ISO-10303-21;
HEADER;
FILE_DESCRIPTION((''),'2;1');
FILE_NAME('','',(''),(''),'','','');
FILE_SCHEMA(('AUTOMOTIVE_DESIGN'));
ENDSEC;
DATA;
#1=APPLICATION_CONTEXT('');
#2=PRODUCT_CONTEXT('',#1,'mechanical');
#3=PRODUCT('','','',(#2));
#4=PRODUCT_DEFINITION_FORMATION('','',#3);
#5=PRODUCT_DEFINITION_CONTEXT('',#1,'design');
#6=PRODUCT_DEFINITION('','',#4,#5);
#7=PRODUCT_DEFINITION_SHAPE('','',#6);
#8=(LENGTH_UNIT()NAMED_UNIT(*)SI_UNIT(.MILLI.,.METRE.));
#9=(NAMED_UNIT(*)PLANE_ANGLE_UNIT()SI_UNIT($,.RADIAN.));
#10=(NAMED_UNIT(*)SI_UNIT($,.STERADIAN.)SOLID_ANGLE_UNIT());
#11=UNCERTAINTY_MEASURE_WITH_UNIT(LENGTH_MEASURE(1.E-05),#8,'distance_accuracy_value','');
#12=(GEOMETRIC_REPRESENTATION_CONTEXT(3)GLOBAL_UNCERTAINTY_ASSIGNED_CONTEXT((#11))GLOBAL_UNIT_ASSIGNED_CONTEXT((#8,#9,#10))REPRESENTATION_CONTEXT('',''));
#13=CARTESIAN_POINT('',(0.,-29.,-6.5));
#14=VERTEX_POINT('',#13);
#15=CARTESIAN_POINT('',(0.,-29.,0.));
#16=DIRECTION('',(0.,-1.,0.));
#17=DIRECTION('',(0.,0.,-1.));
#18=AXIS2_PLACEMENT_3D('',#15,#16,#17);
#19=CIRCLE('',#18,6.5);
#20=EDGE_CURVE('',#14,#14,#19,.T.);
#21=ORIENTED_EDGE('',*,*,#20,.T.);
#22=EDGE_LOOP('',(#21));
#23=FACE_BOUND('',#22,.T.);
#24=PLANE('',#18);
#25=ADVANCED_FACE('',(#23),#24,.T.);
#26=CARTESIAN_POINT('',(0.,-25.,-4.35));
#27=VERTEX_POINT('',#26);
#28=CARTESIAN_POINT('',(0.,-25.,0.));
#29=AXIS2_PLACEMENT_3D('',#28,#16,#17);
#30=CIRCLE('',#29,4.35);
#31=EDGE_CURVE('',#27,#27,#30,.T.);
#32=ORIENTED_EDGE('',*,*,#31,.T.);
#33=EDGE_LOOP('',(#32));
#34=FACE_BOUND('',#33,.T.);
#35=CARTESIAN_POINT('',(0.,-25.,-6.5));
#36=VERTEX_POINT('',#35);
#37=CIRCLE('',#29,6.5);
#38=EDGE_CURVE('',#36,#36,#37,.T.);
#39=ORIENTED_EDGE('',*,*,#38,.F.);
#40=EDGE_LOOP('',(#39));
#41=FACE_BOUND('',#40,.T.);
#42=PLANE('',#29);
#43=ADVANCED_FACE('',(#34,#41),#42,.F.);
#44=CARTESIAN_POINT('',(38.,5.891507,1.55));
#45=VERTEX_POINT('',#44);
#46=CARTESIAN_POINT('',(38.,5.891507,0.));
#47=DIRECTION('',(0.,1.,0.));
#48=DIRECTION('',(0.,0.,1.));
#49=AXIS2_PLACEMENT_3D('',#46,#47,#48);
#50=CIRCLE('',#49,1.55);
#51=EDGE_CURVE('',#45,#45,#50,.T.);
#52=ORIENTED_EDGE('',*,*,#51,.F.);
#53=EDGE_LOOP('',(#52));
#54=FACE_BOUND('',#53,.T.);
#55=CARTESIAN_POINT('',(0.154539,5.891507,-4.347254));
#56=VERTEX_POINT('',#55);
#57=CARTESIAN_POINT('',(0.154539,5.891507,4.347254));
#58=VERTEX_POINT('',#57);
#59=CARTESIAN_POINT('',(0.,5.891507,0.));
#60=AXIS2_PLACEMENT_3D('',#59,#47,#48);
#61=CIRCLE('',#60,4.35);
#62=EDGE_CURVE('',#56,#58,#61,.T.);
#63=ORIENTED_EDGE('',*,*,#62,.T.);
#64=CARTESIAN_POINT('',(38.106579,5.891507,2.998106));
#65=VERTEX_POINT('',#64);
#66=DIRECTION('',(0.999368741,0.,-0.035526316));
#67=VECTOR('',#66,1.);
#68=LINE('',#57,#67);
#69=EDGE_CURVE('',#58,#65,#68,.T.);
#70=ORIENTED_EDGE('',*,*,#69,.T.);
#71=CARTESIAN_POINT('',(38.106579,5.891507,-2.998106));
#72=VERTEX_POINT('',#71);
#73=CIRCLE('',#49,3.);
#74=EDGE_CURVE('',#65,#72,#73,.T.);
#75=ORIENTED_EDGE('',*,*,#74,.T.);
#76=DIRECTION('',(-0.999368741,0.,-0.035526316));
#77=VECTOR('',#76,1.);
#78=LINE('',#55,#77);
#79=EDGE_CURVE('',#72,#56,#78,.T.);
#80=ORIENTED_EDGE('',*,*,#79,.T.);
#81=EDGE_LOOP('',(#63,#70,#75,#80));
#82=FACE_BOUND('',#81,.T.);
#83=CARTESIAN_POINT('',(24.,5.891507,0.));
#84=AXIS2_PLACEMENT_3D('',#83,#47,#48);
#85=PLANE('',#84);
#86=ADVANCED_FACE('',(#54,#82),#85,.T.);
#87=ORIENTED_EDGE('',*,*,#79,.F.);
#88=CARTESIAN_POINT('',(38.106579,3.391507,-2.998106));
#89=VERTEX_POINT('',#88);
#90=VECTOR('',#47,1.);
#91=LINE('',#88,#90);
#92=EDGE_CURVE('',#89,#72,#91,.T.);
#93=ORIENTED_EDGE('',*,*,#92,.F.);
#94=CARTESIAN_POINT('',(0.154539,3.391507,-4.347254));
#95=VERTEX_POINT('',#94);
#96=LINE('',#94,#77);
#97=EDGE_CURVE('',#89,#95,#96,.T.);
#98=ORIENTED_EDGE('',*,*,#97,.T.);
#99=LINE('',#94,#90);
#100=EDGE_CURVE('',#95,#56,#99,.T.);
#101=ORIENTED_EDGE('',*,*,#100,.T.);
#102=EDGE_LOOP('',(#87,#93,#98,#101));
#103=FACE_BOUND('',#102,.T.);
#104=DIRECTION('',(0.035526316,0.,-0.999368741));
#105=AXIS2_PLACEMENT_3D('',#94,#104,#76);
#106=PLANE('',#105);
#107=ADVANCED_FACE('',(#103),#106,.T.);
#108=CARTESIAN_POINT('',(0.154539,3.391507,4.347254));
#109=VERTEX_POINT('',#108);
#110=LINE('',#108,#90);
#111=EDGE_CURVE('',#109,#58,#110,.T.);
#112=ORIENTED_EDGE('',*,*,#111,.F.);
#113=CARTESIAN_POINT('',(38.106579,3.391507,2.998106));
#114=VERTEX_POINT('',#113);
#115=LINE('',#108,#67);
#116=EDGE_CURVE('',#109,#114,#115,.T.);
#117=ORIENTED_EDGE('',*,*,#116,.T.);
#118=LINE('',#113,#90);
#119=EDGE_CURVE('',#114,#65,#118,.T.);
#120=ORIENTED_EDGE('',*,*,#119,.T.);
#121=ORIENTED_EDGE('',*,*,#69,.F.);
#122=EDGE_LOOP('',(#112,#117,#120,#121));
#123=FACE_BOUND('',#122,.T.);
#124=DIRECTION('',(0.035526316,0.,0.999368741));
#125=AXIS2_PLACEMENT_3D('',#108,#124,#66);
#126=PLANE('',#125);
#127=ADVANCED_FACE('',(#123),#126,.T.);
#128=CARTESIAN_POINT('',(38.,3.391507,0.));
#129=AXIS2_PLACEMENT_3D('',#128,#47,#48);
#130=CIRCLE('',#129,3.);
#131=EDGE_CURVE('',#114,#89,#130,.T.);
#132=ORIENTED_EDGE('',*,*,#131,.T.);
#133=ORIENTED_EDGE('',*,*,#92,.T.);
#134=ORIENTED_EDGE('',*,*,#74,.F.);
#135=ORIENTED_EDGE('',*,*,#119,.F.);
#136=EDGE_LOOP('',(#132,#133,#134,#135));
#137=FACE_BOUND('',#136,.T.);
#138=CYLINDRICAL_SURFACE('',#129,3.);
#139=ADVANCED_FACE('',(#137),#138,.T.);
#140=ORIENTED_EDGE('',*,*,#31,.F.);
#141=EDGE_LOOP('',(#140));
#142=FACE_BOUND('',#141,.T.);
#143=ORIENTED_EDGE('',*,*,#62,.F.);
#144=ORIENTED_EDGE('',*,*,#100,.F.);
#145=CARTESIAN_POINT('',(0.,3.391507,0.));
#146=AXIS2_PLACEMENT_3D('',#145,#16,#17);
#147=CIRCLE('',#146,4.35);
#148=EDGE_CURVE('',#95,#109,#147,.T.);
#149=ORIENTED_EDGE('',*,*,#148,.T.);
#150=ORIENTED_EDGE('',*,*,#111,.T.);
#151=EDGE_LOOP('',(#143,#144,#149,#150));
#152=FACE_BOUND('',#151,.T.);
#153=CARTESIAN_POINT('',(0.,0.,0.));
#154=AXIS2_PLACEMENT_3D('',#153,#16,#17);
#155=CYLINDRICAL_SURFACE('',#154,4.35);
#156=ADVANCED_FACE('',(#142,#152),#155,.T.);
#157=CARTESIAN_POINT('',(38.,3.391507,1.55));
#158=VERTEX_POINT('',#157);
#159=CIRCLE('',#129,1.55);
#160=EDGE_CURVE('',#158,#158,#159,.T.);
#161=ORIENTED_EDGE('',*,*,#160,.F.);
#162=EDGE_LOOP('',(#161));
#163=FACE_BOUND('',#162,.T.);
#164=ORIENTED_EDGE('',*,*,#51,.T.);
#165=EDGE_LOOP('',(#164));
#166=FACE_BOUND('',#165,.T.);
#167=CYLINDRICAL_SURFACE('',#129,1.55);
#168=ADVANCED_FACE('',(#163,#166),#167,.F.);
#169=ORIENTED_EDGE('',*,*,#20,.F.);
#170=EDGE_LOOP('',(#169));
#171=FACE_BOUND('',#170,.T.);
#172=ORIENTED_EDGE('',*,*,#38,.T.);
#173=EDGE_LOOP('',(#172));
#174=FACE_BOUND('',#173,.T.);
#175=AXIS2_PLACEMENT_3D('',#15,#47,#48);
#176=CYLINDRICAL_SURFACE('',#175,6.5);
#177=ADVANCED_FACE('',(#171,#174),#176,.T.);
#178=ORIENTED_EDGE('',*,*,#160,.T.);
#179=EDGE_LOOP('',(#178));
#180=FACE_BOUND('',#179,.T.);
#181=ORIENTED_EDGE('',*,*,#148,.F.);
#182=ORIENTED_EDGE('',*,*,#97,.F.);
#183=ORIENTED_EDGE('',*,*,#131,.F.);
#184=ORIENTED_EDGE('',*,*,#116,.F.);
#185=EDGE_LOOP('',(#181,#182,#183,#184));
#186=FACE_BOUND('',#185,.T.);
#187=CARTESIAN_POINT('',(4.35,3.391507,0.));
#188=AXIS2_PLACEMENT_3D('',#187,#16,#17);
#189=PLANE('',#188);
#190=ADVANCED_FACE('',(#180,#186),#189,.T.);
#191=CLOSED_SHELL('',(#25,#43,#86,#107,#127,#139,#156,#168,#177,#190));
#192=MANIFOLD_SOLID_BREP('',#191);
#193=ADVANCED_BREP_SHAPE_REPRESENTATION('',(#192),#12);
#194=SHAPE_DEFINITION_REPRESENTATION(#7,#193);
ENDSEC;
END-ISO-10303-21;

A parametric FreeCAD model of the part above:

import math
import FreeCAD as App
import Part
import Sketcher

V = App.Vector


def add_polygon(sketch, points):
    """Adds a closed chain of lines whose ends are joined by coincident constraints."""
    first, n = sketch.GeometryCount, len(points)
    for a, b in zip(points, points[1:] + points[:1]):
        sketch.addGeometry(Part.LineSegment(App.Vector(*a, 0), App.Vector(*b, 0)), False)
    for i in range(n):
        sketch.addConstraint(Sketcher.Constraint("Coincident", first + i, 2, first + (i + 1) % n, 1))

doc = App.newDocument("Part")
body = doc.addObject("PartDesign::Body", "Body")

sketch1 = doc.addObject("Sketcher::SketchObject", "Sketch")
body.addObject(sketch1)
sketch1.AttachmentSupport = (doc.XY_Plane, [""])
sketch1.MapMode = "FlatFace"
add_polygon(sketch1, [(1.4, 5.9), (1.4, 3.5), (2.5, 3.5), (2.5, 0), (4.3, 0), (4.3, 3.4), (24, 3.4), (24, 5.9)])
sketch1.addConstraint([
    Sketcher.Constraint("Vertical", 0),
    Sketcher.Constraint("Horizontal", 1),
    Sketcher.Constraint("Vertical", 2),
    Sketcher.Constraint("Horizontal", 3),
    Sketcher.Constraint("Vertical", 4),
    Sketcher.Constraint("Horizontal", 5),
    Sketcher.Constraint("Vertical", 6),
    Sketcher.Constraint("Horizontal", 7),
    Sketcher.Constraint("PointOnObject", 2, 2, -1),
    Sketcher.Constraint("DistanceX", 1, 1, 1, 2, 1.1),
    Sketcher.Constraint("DistanceX", 7, 2, 7, 1, 22.6),
    Sketcher.Constraint("DistanceY", 2, 2, 2, 1, 3.5),
    Sketcher.Constraint("DistanceY", 6, 1, 6, 2, 2.5),
    Sketcher.Constraint("DistanceX", -1, 1, 5, 2, 24.0),
    Sketcher.Constraint("DistanceX", 3, 1, 3, 2, 1.85),
    Sketcher.Constraint("DistanceY", 0, 2, 0, 1, 2.391507),
])
revolution = doc.addObject("PartDesign::Revolution", "Revolution")
body.addObject(revolution)
revolution.Profile = sketch1
revolution.ReferenceAxis = (sketch1, ["V_Axis"])
revolution.Angle = 360

sketch2 = doc.addObject("Sketcher::SketchObject", "Sketch001")
body.addObject(sketch2)
sketch2.AttachmentSupport = (doc.XZ_Plane, [""])
sketch2.MapMode = "FlatFace"
sketch2.AttachmentOffset = App.Placement(V(0, 0, -5.891507), App.Rotation())
sketch2.addGeometry([
    Part.Circle(V(-16, 0, 0), V(0, 0, 1), 1.5),
    Part.Circle(V(0, 16, 0), V(0, 0, 1), 1.5),
    Part.Circle(V(16, 0, 0), V(0, 0, 1), 1.5),
    Part.Circle(V(0, -16, 0), V(0, 0, 1), 1.5),
], False)
sketch2.addConstraint([
    Sketcher.Constraint("Equal", 0, 1),
    Sketcher.Constraint("Equal", 1, 2),
    Sketcher.Constraint("Equal", 2, 3),
    Sketcher.Constraint("Symmetric", 0, 3, 2, 3, -1, 1),
    Sketcher.Constraint("Symmetric", 1, 3, 3, 3, -1, 1),
    Sketcher.Constraint("PointOnObject", 0, 3, -1),
    Sketcher.Constraint("PointOnObject", 1, 3, -2),
    Sketcher.Constraint("Diameter", 0, 3.0),
    Sketcher.Constraint("DistanceX", 0, 3, -1, 1, 16.0),
    Sketcher.Constraint("DistanceY", -1, 1, 1, 3, 16.0),
])
pocket1 = doc.addObject("PartDesign::Pocket", "Pocket")
body.addObject(pocket1)
pocket1.Profile = sketch2
pocket1.Length = 10
pocket1.Reversed = True
body2 = doc.addObject("PartDesign::Body", "Body001")

sketch3 = doc.addObject("Sketcher::SketchObject", "Sketch002")
body2.addObject(sketch3)
sketch3.AttachmentSupport = (doc.getObject("XZ_Plane001"), [""])
sketch3.MapMode = "FlatFace"
sketch3.addGeometry(Part.Circle(V(0, 0, 0), V(0, 0, 1), 2.5), False)
sketch3.addConstraint([
    Sketcher.Constraint("Coincident", 0, 3, -1, 1),
    Sketcher.Constraint("Diameter", 0, 5.0),
])
pad1 = doc.addObject("PartDesign::Pad", "Pad")
body2.addObject(pad1)
pad1.Profile = sketch3
pad1.Length = 20

sketch4 = doc.addObject("Sketcher::SketchObject", "Sketch003")
body2.addObject(sketch4)
sketch4.AttachmentSupport = (doc.getObject("XZ_Plane001"), [""])
sketch4.MapMode = "FlatFace"
sketch4.AttachmentOffset = App.Placement(V(0, 0, 20), App.Rotation())
sketch4.addGeometry(Part.Circle(V(0, 0, 0), V(0, 0, 1), 1.9), False)
sketch4.addConstraint([
    Sketcher.Constraint("Coincident", 0, 3, -1, 1),
    Sketcher.Constraint("Diameter", 0, 3.7),
])
pad2 = doc.addObject("PartDesign::Pad", "Pad001")
body2.addObject(pad2)
pad2.Profile = sketch4
pad2.Length = 5
body.AllowCompound = True
doc.recompute()

boolean = doc.addObject("PartDesign::Boolean", "Boolean")
body.addObject(boolean)
boolean.Type = "Fuse"
boolean.addObjects([body2])

sketch5 = doc.addObject("Sketcher::SketchObject", "Sketch004")
body.addObject(sketch5)
sketch5.AttachmentSupport = (doc.XZ_Plane, [""])
sketch5.MapMode = "FlatFace"
sketch5.addGeometry(Part.Circle(V(0, 0, 0), V(0, 0, 1), 2.5), False)
sketch5.addConstraint([
    Sketcher.Constraint("Coincident", 0, 3, -1, 1),
    Sketcher.Constraint("Diameter", 0, 5.0),
])
pad3 = doc.addObject("PartDesign::Pad", "Pad002")
body.addObject(pad3)
pad3.Profile = sketch5
pad3.Length = 5.891507
pad3.Reversed = True

sketch6 = doc.addObject("Sketcher::SketchObject", "Sketch005")
body.addObject(sketch6)
sketch6.AttachmentSupport = (doc.XZ_Plane, [""])
sketch6.MapMode = "FlatFace"
sketch6.addGeometry(Part.Circle(V(0, 0, 0), V(0, 0, 1), 4.3), False)
sketch6.addConstraint([
    Sketcher.Constraint("Coincident", 0, 3, -1, 1),
    Sketcher.Constraint("Diameter", 0, 8.7),
])
pad4 = doc.addObject("PartDesign::Pad", "Pad003")
body.addObject(pad4)
pad4.Profile = sketch6
pad4.Type = "UpToLast"

sketch7 = doc.addObject("Sketcher::SketchObject", "Sketch006")
body.addObject(sketch7)
sketch7.AttachmentSupport = (doc.XZ_Plane, [""])
sketch7.MapMode = "FlatFace"
sketch7.AttachmentOffset = App.Placement(V(0, 0, 25), App.Rotation())
sketch7.addGeometry(Part.Circle(V(0, 0, 0), V(0, 0, 1), 6), False)
sketch7.addConstraint([
    Sketcher.Constraint("Coincident", 0, 3, -1, 1),
    Sketcher.Constraint("Diameter", 0, 13.0),
])
pad5 = doc.addObject("PartDesign::Pad", "Pad004")
body.addObject(pad5)
pad5.Profile = sketch7
pad5.Length = 4

sketch8 = doc.addObject("Sketcher::SketchObject", "Sketch007")
body.addObject(sketch8)
sketch8.AttachmentSupport = (doc.XZ_Plane, [""])
sketch8.MapMode = "FlatFace"
sketch8.AttachmentOffset = App.Placement(V(0, 0, -5.891507), App.Rotation())
add_polygon(sketch8, [(-32.6, -32.6), (-32.6, 32.6), (32.6, 32.6), (32.6, -32.6)])
sketch8.addGeometry(Part.ArcOfCircle(Part.Circle(V(0, 0, 0), V(0, 0, 1), 4.3), math.radians(85), math.radians(275)), False)
sketch8.addGeometry(Part.LineSegment(V(0.4, -4.3, 0), V(16.3, -3, 0)), False)
sketch8.addGeometry(Part.ArcOfCircle(Part.Circle(V(16, 0, 0), V(0, 0, 1), 3), math.radians(-85), math.radians(85)), False)
sketch8.addGeometry(Part.LineSegment(V(16.3, 3, 0), V(0.4, 4.3, 0)), False)
sketch8.addConstraint([
    Sketcher.Constraint("Tangent", 4, 2, 5, 1),
    Sketcher.Constraint("Tangent", 5, 2, 6, 1),
    Sketcher.Constraint("Tangent", 6, 2, 7, 1),
    Sketcher.Constraint("Tangent", 7, 2, 4, 1),
    Sketcher.Constraint("Vertical", 0),
    Sketcher.Constraint("Horizontal", 1),
    Sketcher.Constraint("Vertical", 2),
    Sketcher.Constraint("Horizontal", 3),
    Sketcher.Constraint("Coincident", 4, 3, -1, 1),
    Sketcher.Constraint("Symmetric", 0, 2, 2, 2, -1, 1),
    Sketcher.Constraint("PointOnObject", 6, 3, -1),
    Sketcher.Constraint("Equal", 3, 0),
    Sketcher.Constraint("Radius", 6, 3.0),
    Sketcher.Constraint("Radius", 4, 4.35),
    Sketcher.Constraint("DistanceX", -1, 1, 6, 3, 16.0),
    Sketcher.Constraint("DistanceX", 1, 1, 1, 2, 65.264),
])
pocket2 = doc.addObject("PartDesign::Pocket", "Pocket001")
body.addObject(pocket2)
pocket2.Profile = sketch8
pocket2.Length = 5
pocket2.Reversed = True

sketch9 = doc.addObject("Sketcher::SketchObject", "Sketch008")
body.addObject(sketch9)
sketch9.AttachmentSupport = (doc.XZ_Plane, [""])
sketch9.MapMode = "FlatFace"
sketch9.AttachmentOffset = App.Placement(V(0, 0, -5.891507), App.Rotation())
sketch9.addGeometry([
    Part.LineSegment(V(38.1, -3, 0), V(0.2, -4.3, 0)),
    Part.ArcOfCircle(Part.Circle(V(0, 0, 0), V(0, 0, 1), 4.3), math.radians(88), math.radians(272)),
    Part.LineSegment(V(0.2, 4.3, 0), V(38.1, 3, 0)),
    Part.ArcOfCircle(Part.Circle(V(38, 0, 0), V(0, 0, 1), 3), math.radians(-88), math.radians(88)),
    Part.Circle(V(38, 0, 0), V(0, 0, 1), 1.6),
], False)
sketch9.addConstraint([
    Sketcher.Constraint("Tangent", 0, 2, 1, 2),
    Sketcher.Constraint("Tangent", 1, 1, 2, 1),
    Sketcher.Constraint("Tangent", 2, 2, 3, 2),
    Sketcher.Constraint("Tangent", 3, 1, 0, 1),
    Sketcher.Constraint("Coincident", 1, 3, -1, 1),
    Sketcher.Constraint("Coincident", 4, 3, 3, 3),
    Sketcher.Constraint("PointOnObject", 3, 3, -1),
    Sketcher.Constraint("Radius", 3, 3.0),
    Sketcher.Constraint("Diameter", 4, 3.1),
    Sketcher.Constraint("Radius", 1, 4.35),
    Sketcher.Constraint("DistanceX", -1, 1, 3, 3, 38.0),
])
pad6 = doc.addObject("PartDesign::Pad", "Pad005")
body.addObject(pad6)
pad6.Profile = sketch9
pad6.Length = 2.5

doc.recompute()
